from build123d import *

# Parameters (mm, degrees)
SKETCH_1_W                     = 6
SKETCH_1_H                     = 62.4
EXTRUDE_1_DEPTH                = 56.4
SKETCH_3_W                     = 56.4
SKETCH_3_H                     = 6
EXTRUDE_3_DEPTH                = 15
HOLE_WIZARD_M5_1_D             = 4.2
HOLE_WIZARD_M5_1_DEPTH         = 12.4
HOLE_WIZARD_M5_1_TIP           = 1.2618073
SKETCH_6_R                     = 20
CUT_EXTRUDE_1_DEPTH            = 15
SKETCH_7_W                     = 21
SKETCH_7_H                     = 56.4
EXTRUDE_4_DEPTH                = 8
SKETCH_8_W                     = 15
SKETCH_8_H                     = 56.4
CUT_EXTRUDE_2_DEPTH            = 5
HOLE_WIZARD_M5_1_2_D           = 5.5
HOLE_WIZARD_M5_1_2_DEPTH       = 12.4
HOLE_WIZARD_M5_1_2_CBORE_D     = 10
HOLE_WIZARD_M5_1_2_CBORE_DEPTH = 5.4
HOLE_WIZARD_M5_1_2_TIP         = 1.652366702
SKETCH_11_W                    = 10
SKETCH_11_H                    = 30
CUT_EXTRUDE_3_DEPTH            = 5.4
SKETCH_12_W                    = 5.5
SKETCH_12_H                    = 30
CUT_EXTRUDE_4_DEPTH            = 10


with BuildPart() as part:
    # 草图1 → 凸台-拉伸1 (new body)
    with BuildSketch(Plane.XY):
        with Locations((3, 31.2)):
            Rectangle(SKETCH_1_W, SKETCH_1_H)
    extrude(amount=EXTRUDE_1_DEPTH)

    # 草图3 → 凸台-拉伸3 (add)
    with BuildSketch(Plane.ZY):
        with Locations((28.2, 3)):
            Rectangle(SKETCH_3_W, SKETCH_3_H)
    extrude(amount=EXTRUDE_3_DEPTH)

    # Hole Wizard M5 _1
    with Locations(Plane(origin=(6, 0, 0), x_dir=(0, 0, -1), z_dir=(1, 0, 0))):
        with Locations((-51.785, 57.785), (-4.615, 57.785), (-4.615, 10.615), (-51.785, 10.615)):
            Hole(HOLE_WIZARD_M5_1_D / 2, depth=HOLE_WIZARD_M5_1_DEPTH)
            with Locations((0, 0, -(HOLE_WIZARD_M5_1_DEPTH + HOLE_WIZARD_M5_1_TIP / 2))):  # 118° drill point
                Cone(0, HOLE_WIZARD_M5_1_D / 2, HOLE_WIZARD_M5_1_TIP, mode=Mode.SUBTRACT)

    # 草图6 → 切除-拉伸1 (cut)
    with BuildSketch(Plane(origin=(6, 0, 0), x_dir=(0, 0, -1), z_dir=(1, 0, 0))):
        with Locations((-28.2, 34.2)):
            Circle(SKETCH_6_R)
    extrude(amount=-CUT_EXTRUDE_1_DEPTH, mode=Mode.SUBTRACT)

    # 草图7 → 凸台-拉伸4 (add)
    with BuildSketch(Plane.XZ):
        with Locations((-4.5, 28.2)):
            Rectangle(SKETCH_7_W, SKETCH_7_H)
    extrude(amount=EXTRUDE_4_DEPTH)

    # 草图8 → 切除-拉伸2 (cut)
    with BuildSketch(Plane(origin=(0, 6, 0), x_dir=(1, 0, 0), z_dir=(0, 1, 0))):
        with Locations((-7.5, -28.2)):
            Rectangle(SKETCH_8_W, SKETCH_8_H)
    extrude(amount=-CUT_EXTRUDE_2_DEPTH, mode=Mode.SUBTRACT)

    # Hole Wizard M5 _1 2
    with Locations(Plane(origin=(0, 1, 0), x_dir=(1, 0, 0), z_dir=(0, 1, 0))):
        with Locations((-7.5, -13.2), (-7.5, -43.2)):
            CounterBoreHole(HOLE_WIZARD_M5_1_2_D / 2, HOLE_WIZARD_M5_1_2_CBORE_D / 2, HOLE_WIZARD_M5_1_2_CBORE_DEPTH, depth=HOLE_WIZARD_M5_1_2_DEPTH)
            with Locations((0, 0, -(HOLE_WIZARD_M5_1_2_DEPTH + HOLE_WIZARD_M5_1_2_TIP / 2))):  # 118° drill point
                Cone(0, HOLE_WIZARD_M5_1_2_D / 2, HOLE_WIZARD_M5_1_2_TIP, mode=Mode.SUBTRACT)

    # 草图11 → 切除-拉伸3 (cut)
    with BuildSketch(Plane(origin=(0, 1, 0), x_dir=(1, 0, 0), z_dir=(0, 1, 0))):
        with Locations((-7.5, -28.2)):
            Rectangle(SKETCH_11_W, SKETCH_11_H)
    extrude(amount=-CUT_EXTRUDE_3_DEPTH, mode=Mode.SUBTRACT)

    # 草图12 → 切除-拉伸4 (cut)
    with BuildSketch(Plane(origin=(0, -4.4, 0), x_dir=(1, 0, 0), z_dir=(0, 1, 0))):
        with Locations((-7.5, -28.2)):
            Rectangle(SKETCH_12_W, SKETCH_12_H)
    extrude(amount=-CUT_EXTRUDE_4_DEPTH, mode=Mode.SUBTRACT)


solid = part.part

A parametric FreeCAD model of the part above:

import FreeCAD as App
import Part
import Sketcher


def add_polygon(sketch, points):
    """Adds a closed chain of lines whose ends are joined by coincident constraints."""
    first, n = sketch.GeometryCount, len(points)
    for a, b in zip(points, points[1:] + points[:1]):
        sketch.addGeometry(Part.LineSegment(App.Vector(*a, 0), App.Vector(*b, 0)), False)
    for i in range(n):
        sketch.addConstraint(Sketcher.Constraint("Coincident", first + i, 2, first + (i + 1) % n, 1))

doc = App.newDocument("Part")
params = doc.addObject("Spreadsheet::Sheet", "Params")
for row, (alias, value) in enumerate([
    ("sketch1_width", "6 mm"),
    ("sketch1_height", "62.4 mm"),
    ("pad1_length", "56.4 mm"),
    ("sketch2_width", "6 mm"),
    ("sketch2_height", "56.4 mm"),
    ("pad2_length", "15 mm"),
    ("sketch3_diameter", "4.2 mm"),
    ("hole_diameter", "4.2 mm"),
    ("hole_depth", "12.4 mm"),
    ("sketch4_diameter", "40 mm"),
    ("pocket1_length", "15 mm"),
    ("sketch5_width", "21 mm"),
    ("sketch5_height", "56.4 mm"),
    ("pad3_length", "8 mm"),
    ("sketch6_width", "15 mm"),
    ("sketch6_height", "56.4 mm"),
    ("pocket2_length", "5 mm"),
    ("sketch7_diameter", "5.5 mm"),
    ("hole2_diameter", "5.5 mm"),
    ("hole2_depth", "12.4 mm"),
    ("hole2_cbore_diameter", "10 mm"),
    ("hole2_cbore_depth", "5.4 mm"),
    ("sketch8_width", "10 mm"),
    ("sketch8_height", "30 mm"),
    ("pocket3_length", "5.4 mm"),
    ("sketch9_height", "30 mm"),
    ("sketch9_width", "5.5 mm"),
    ("pocket4_length", "10 mm"),
], start=1):
    params.set(f"A{row}", alias)
    params.set(f"B{row}", "=" + value)
    params.setAlias(f"B{row}", alias)

body = doc.addObject("PartDesign::Body", "Body")

# Sketch on XY plane
sketch1 = doc.addObject("Sketcher::SketchObject", "Sketch")
body.addObject(sketch1)
sketch1.AttachmentSupport = (doc.XY_Plane, [""])
sketch1.MapMode = "FlatFace"
add_polygon(sketch1, [(0, 62.4), (0, 0), (6, 0), (6, 62.4)])  # lines 0-3
sketch1.addConstraint([
    Sketcher.Constraint("Vertical", 0),
    Sketcher.Constraint("Horizontal", 1),
    Sketcher.Constraint("Vertical", 2),
    Sketcher.Constraint("Horizontal", 3),
    Sketcher.Constraint("Coincident", 0, 2, -1, 1),
    Sketcher.Constraint("DistanceX", 1, 1, 1, 2, 6.0),
    Sketcher.Constraint("DistanceY", 0, 2, 0, 1, 62.4),
])
sketch1.setExpression("Constraints[9]", "Params.sketch1_width")
sketch1.setExpression("Constraints[10]", "Params.sketch1_height")
pad1 = doc.addObject("PartDesign::Pad", "Pad")
body.addObject(pad1)
pad1.Profile = sketch1
pad1.setExpression("Length", "Params.pad1_length")

# Sketch on YZ plane
sketch2 = doc.addObject("Sketcher::SketchObject", "Sketch001")
body.addObject(sketch2)
sketch2.AttachmentSupport = (doc.YZ_Plane, [""])
sketch2.MapMode = "FlatFace"
add_polygon(sketch2, [(6, 0), (0, 0), (0, 56.4), (6, 56.4)])  # lines 0-3
sketch2.addConstraint([
    Sketcher.Constraint("Horizontal", 0),
    Sketcher.Constraint("Vertical", 1),
    Sketcher.Constraint("Horizontal", 2),
    Sketcher.Constraint("Vertical", 3),
    Sketcher.Constraint("Coincident", 0, 2, -1, 1),
    Sketcher.Constraint("DistanceX", 0, 2, 0, 1, 6.0),
    Sketcher.Constraint("DistanceY", 1, 1, 1, 2, 56.4),
])
sketch2.setExpression("Constraints[9]", "Params.sketch2_width")
sketch2.setExpression("Constraints[10]", "Params.sketch2_height")
pad2 = doc.addObject("PartDesign::Pad", "Pad001")
body.addObject(pad2)
pad2.Profile = sketch2
pad2.setExpression("Length", "Params.pad2_length")
pad2.Reversed = True

# Sketch on YZ plane
sketch3 = doc.addObject("Sketcher::SketchObject", "Sketch002")
body.addObject(sketch3)
sketch3.AttachmentSupport = (doc.YZ_Plane, [""])
sketch3.MapMode = "FlatFace"
sketch3.AttachmentOffset = App.Placement(App.Vector(0, 0, 6), App.Rotation())
sketch3.addGeometry([
    Part.Circle(App.Vector(57.785, 51.785, 0), App.Vector(0, 0, 1), 2.1),
    Part.Circle(App.Vector(57.785, 4.615, 0), App.Vector(0, 0, 1), 2.1),
    Part.Circle(App.Vector(10.615, 4.615, 0), App.Vector(0, 0, 1), 2.1),
    Part.Circle(App.Vector(10.615, 51.785, 0), App.Vector(0, 0, 1), 2.1),
], False)
sketch3.addConstraint([
    Sketcher.Constraint("Equal", 0, 1),
    Sketcher.Constraint("Equal", 1, 2),
    Sketcher.Constraint("Equal", 2, 3),
    Sketcher.Constraint("Horizontal", 1, 3, 2, 3),
    Sketcher.Constraint("Horizontal", 0, 3, 3, 3),
    Sketcher.Constraint("Vertical", 0, 3, 1, 3),
    Sketcher.Constraint("Vertical", 2, 3, 3, 3),
    Sketcher.Constraint("Diameter", 0, 4.2),
    Sketcher.Constraint("DistanceY", 1, 3, 0, 3, 47.17),
    Sketcher.Constraint("DistanceX", 2, 3, 1, 3, 47.17),
    Sketcher.Constraint("DistanceX", -1, 1, 0, 3, 57.785),
    Sketcher.Constraint("DistanceY", -1, 1, 0, 3, 51.785),
])
sketch3.setExpression("Constraints[7]", "Params.sketch3_diameter")
doc.recompute()
hole = doc.addObject("PartDesign::Hole", "Hole")
body.addObject(hole)
hole.Profile = sketch3
hole.ThreadType = "None"
hole.setExpression("Diameter", "Params.hole_diameter")
hole.DepthType = "Dimension"
hole.setExpression("Depth", "Params.hole_depth")
hole.DrillPoint = "Angled"
hole.DrillPointAngle = 118

# Sketch on YZ plane
sketch4 = doc.addObject("Sketcher::SketchObject", "Sketch003")
body.addObject(sketch4)
sketch4.AttachmentSupport = (doc.YZ_Plane, [""])
sketch4.MapMode = "FlatFace"
sketch4.AttachmentOffset = App.Placement(App.Vector(0, 0, 6), App.Rotation())
sketch4.addGeometry(Part.Circle(App.Vector(34.2, 28.2, 0), App.Vector(0, 0, 1), 20), False)
sketch4.addConstraint([
    Sketcher.Constraint("Diameter", 0, 40.0),
    Sketcher.Constraint("DistanceX", -1, 1, 0, 3, 34.2),
    Sketcher.Constraint("DistanceY", -1, 1, 0, 3, 28.2),
])
sketch4.setExpression("Constraints[0]", "Params.sketch4_diameter")
pocket1 = doc.addObject("PartDesign::Pocket", "Pocket")
body.addObject(pocket1)
pocket1.Profile = sketch4
pocket1.setExpression("Length", "Params.pocket1_length")

# Sketch on XZ plane
sketch5 = doc.addObject("Sketcher::SketchObject", "Sketch004")
body.addObject(sketch5)
sketch5.AttachmentSupport = (doc.XZ_Plane, [""])
sketch5.MapMode = "FlatFace"
add_polygon(sketch5, [(-15, 56.4), (-15, 0), (6, 0), (6, 56.4)])  # lines 0-3
sketch5.addConstraint([
    Sketcher.Constraint("Vertical", 0),
    Sketcher.Constraint("Horizontal", 1),
    Sketcher.Constraint("Vertical", 2),
    Sketcher.Constraint("Horizontal", 3),
    Sketcher.Constraint("PointOnObject", 0, 2, -1),
    Sketcher.Constraint("DistanceX", 1, 1, 1, 2, 21.0),
    Sketcher.Constraint("DistanceY", 0, 2, 0, 1, 56.4),
    Sketcher.Constraint("DistanceX", 0, 2, -1, 1, 15.0),
])
sketch5.setExpression("Constraints[9]", "Params.sketch5_width")
sketch5.setExpression("Constraints[10]", "Params.sketch5_height")
pad3 = doc.addObject("PartDesign::Pad", "Pad002")
body.addObject(pad3)
pad3.Profile = sketch5
pad3.setExpression("Length", "Params.pad3_length")

# Sketch on XZ plane
sketch6 = doc.addObject("Sketcher::SketchObject", "Sketch005")
body.addObject(sketch6)
sketch6.AttachmentSupport = (doc.XZ_Plane, [""])
sketch6.MapMode = "FlatFace"
sketch6.AttachmentOffset = App.Placement(App.Vector(0, 0, -6), App.Rotation())
add_polygon(sketch6, [(-15, 0), (-15, 56.4), (0, 56.4), (0, 0)])  # lines 0-3
sketch6.addConstraint([
    Sketcher.Constraint("Vertical", 0),
    Sketcher.Constraint("Horizontal", 1),
    Sketcher.Constraint("Vertical", 2),
    Sketcher.Constraint("Horizontal", 3),
    Sketcher.Constraint("Coincident", 2, 2, -1, 1),
    Sketcher.Constraint("DistanceX", 1, 1, 1, 2, 15.0),
    Sketcher.Constraint("DistanceY", 0, 1, 0, 2, 56.4),
])
sketch6.setExpression("Constraints[9]", "Params.sketch6_width")
sketch6.setExpression("Constraints[10]", "Params.sketch6_height")
pocket2 = doc.addObject("PartDesign::Pocket", "Pocket001")
body.addObject(pocket2)
pocket2.Profile = sketch6
pocket2.setExpression("Length", "Params.pocket2_length")
pocket2.Reversed = True

# Sketch on XZ plane
sketch7 = doc.addObject("Sketcher::SketchObject", "Sketch006")
body.addObject(sketch7)
sketch7.AttachmentSupport = (doc.XZ_Plane, [""])
sketch7.MapMode = "FlatFace"
sketch7.AttachmentOffset = App.Placement(App.Vector(0, 0, -1), App.Rotation())
sketch7.addGeometry([
    Part.Circle(App.Vector(-7.5, 13.2, 0), App.Vector(0, 0, 1), 2.75),
    Part.Circle(App.Vector(-7.5, 43.2, 0), App.Vector(0, 0, 1), 2.75),
], False)
sketch7.addConstraint([
    Sketcher.Constraint("Equal", 0, 1),
    Sketcher.Constraint("Vertical", 0, 3, 1, 3),
    Sketcher.Constraint("Diameter", 0, 5.5),
    Sketcher.Constraint("DistanceY", 0, 3, 1, 3, 30.0),
    Sketcher.Constraint("DistanceX", 0, 3, -1, 1, 7.5),
    Sketcher.Constraint("DistanceY", -1, 1, 0, 3, 13.2),
])
sketch7.setExpression("Constraints[2]", "Params.sketch7_diameter")
doc.recompute()
hole2 = doc.addObject("PartDesign::Hole", "Hole001")
body.addObject(hole2)
hole2.Profile = sketch7
hole2.ThreadType = "None"
hole2.setExpression("Diameter", "Params.hole2_diameter")
hole2.DepthType = "Dimension"
hole2.setExpression("Depth", "Params.hole2_depth")
hole2.DrillPoint = "Angled"
hole2.DrillPointAngle = 118
hole2.HoleCutType = "Counterbore"
hole2.setExpression("HoleCutDiameter", "Params.hole2_cbore_diameter")
hole2.setExpression("HoleCutDepth", "Params.hole2_cbore_depth")
hole2.Reversed = True

# Sketch on XZ plane
sketch8 = doc.addObject("Sketcher::SketchObject", "Sketch007")
body.addObject(sketch8)
sketch8.AttachmentSupport = (doc.XZ_Plane, [""])
sketch8.MapMode = "FlatFace"
sketch8.AttachmentOffset = App.Placement(App.Vector(0, 0, -1), App.Rotation())
add_polygon(sketch8, [(-12.5, 13.2), (-12.5, 43.2), (-2.5, 43.2), (-2.5, 13.2)])  # lines 0-3
sketch8.addConstraint([
    Sketcher.Constraint("Vertical", 0),
    Sketcher.Constraint("Horizontal", 1),
    Sketcher.Constraint("Vertical", 2),
    Sketcher.Constraint("Horizontal", 3),
    Sketcher.Constraint("DistanceX", 1, 1, 1, 2, 10.0),
    Sketcher.Constraint("DistanceY", 0, 1, 0, 2, 30.0),
    Sketcher.Constraint("DistanceX", 0, 2, -1, 1, 12.5),
    Sketcher.Constraint("DistanceY", -1, 1, 0, 2, 43.2),
])
sketch8.setExpression("Constraints[8]", "Params.sketch8_width")
sketch8.setExpression("Constraints[9]", "Params.sketch8_height")
pocket3 = doc.addObject("PartDesign::Pocket", "Pocket002")
body.addObject(pocket3)
pocket3.Profile = sketch8
pocket3.setExpression("Length", "Params.pocket3_length")
pocket3.Reversed = True

# Sketch on XZ plane
sketch9 = doc.addObject("Sketcher::SketchObject", "Sketch008")
body.addObject(sketch9)
sketch9.AttachmentSupport = (doc.XZ_Plane, [""])
sketch9.MapMode = "FlatFace"
sketch9.AttachmentOffset = App.Placement(App.Vector(0, 0, 4.4), App.Rotation())
add_polygon(sketch9, [(-10.25, 13.2), (-10.25, 43.2), (-4.75, 43.2), (-4.75, 13.2)])  # lines 0-3
sketch9.addConstraint([
    Sketcher.Constraint("Vertical", 0),
    Sketcher.Constraint("Horizontal", 1),
    Sketcher.Constraint("Vertical", 2),
    Sketcher.Constraint("Horizontal", 3),
    Sketcher.Constraint("DistanceY", 0, 1, 0, 2, 30.0),
    Sketcher.Constraint("DistanceX", 1, 1, 1, 2, 5.5),
    Sketcher.Constraint("DistanceY", -1, 1, 0, 2, 43.2),
    Sketcher.Constraint("DistanceX", 0, 2, -1, 1, 10.25),
])
sketch9.setExpression("Constraints[8]", "Params.sketch9_height")
sketch9.setExpression("Constraints[9]", "Params.sketch9_width")
pocket4 = doc.addObject("PartDesign::Pocket", "Pocket003")
body.addObject(pocket4)
pocket4.Profile = sketch9
pocket4.setExpression("Length", "Params.pocket4_length")
pocket4.Reversed = True

doc.recompute()
